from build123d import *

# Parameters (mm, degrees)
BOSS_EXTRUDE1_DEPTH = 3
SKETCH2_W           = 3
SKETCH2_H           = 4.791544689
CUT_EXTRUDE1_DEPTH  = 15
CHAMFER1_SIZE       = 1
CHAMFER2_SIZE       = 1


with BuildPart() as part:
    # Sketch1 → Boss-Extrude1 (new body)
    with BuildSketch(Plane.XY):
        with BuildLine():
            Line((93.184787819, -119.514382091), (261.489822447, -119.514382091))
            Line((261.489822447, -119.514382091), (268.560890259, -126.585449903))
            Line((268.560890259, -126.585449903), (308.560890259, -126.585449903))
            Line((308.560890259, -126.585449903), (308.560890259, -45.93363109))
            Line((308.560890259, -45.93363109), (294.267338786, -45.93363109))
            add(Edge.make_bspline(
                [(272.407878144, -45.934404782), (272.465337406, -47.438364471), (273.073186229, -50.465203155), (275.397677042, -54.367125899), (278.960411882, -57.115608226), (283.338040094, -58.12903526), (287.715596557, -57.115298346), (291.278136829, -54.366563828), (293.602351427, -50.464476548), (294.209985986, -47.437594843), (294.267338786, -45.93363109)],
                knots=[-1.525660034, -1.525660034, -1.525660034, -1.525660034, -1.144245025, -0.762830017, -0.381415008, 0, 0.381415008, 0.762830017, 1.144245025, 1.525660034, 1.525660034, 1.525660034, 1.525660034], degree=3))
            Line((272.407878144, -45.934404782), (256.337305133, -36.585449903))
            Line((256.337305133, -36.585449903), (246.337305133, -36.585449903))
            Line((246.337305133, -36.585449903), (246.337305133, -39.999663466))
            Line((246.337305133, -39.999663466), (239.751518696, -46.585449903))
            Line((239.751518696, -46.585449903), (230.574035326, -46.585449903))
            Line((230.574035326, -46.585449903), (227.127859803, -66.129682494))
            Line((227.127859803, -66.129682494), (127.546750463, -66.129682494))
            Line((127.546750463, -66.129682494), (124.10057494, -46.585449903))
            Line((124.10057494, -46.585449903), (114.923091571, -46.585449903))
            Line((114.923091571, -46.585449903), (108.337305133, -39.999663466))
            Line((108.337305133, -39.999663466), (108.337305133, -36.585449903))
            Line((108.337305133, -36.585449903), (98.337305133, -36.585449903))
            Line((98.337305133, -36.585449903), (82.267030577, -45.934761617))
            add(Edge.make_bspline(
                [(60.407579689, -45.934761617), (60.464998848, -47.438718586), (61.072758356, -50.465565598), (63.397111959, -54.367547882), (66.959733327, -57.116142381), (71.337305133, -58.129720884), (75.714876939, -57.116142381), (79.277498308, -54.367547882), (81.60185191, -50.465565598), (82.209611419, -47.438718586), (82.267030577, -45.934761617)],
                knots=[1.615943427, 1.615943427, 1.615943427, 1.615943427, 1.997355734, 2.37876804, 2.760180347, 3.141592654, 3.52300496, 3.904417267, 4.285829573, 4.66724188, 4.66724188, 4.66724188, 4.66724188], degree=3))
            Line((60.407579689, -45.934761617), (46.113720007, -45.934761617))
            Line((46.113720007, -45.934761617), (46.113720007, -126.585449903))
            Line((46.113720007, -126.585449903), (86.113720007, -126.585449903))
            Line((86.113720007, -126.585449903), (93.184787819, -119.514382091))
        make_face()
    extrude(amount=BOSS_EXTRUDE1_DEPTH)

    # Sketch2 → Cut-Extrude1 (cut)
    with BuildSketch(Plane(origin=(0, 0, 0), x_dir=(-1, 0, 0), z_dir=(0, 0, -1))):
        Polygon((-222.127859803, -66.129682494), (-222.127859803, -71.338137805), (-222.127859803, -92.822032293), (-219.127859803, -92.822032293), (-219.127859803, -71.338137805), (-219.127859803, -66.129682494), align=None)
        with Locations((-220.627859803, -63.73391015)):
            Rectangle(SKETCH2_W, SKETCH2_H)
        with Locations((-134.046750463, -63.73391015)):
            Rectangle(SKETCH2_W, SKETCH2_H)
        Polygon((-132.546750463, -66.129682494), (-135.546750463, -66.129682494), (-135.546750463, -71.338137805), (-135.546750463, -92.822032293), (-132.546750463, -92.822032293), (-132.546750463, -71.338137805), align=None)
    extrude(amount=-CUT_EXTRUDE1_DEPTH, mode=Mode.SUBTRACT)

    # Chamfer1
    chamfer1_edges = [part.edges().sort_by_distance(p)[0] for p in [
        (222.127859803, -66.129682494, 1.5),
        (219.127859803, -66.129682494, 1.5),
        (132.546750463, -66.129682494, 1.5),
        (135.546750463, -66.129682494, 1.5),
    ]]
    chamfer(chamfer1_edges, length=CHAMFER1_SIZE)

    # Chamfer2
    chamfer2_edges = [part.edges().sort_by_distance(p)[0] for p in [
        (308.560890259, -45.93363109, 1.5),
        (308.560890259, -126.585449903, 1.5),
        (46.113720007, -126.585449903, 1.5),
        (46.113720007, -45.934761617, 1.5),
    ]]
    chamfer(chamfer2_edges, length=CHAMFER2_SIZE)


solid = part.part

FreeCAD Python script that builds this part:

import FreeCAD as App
import Part
import Sketcher
Q = App.Units.Quantity


def edges_at(feature, points):
    """Names of the edges that pass closest to the given points."""
    edges = feature.Shape.Edges
    near = lambda p: min(range(len(edges)), key=lambda i: edges[i].distToShape(Part.Vertex(*p))[0])
    return sorted({f"Edge{near(p) + 1}" for p in points})


def add_polygon(sketch, points):
    """Adds a closed chain of lines whose ends are joined by coincident constraints."""
    first, n = sketch.GeometryCount, len(points)
    for a, b in zip(points, points[1:] + points[:1]):
        sketch.addGeometry(Part.LineSegment(App.Vector(*a, 0), App.Vector(*b, 0)), False)
    for i in range(n):
        sketch.addConstraint(Sketcher.Constraint("Coincident", first + i, 2, first + (i + 1) % n, 1))

doc = App.newDocument("Part")
params = doc.addObject("Spreadsheet::Sheet", "Params")
for row, (alias, value) in enumerate([
    ("sketch1_width", "40 mm"),
    ("sketch1_width2", "10 mm"),
    ("sketch1_length", "10 mm"),
    ("pad1_length", "3 mm"),
    ("sketch2_width", "3 mm"),
    ("pocket1_length", "15 mm"),
    ("chamfer_size", "1 mm"),
    ("chamfer2_size", "1 mm"),
], start=1):
    params.set(f"A{row}", alias)
    params.set(f"B{row}", "=" + value)
    params.setAlias(f"B{row}", alias)

body = doc.addObject("PartDesign::Body", "Body")

# Sketch on XY plane
sketch1 = doc.addObject("Sketcher::SketchObject", "Sketch")
body.addObject(sketch1)
sketch1.AttachmentSupport = (doc.XY_Plane, [""])
sketch1.MapMode = "FlatFace"
sketch1.addGeometry([
    Part.LineSegment(App.Vector(93.184788, -119.514382, 0), App.Vector(261.489822, -119.514382, 0)),  # 0
    Part.LineSegment(App.Vector(261.489822, -119.514382, 0), App.Vector(268.56089, -126.58545, 0)),  # 1
    Part.LineSegment(App.Vector(268.56089, -126.58545, 0), App.Vector(308.56089, -126.58545, 0)),  # 2
    Part.LineSegment(App.Vector(308.56089, -126.58545, 0), App.Vector(308.56089, -45.933631, 0)),  # 3
    Part.LineSegment(App.Vector(308.56089, -45.933631, 0), App.Vector(294.267339, -45.933631, 0)),  # 4
    Part.BSplineCurve([App.Vector(272.407878, -45.934405, 0), App.Vector(272.465337, -47.438364, 0), App.Vector(273.073186, -50.465203, 0), App.Vector(275.397677, -54.367126, 0), App.Vector(278.960412, -57.115608, 0), App.Vector(283.33804, -58.129035, 0), App.Vector(287.715597, -57.115298, 0), App.Vector(291.278137, -54.366564, 0), App.Vector(293.602351, -50.464477, 0), App.Vector(294.209986, -47.437595, 0), App.Vector(294.267339, -45.933631, 0)], [4, 1, 1, 1, 1, 1, 1, 1, 4], [-1.525660034, -1.144245025, -0.762830017, -0.381415008, 0, 0.381415008, 0.762830017, 1.144245025, 1.525660034], False, 3, [1, 1, 1, 1, 1, 1, 1, 1, 1, 1, 1], False),  # 5
    Part.LineSegment(App.Vector(272.407878, -45.934405, 0), App.Vector(256.337305, -36.58545, 0)),  # 6
    Part.LineSegment(App.Vector(256.337305, -36.58545, 0), App.Vector(246.337305, -36.58545, 0)),  # 7
    Part.LineSegment(App.Vector(246.337305, -36.58545, 0), App.Vector(246.337305, -39.999663, 0)),  # 8
    Part.LineSegment(App.Vector(246.337305, -39.999663, 0), App.Vector(239.751519, -46.58545, 0)),  # 9
    Part.LineSegment(App.Vector(239.751519, -46.58545, 0), App.Vector(230.574035, -46.58545, 0)),  # 10
    Part.LineSegment(App.Vector(230.574035, -46.58545, 0), App.Vector(227.12786, -66.129682, 0)),  # 11
    Part.LineSegment(App.Vector(227.12786, -66.129682, 0), App.Vector(127.54675, -66.129682, 0)),  # 12
    Part.LineSegment(App.Vector(127.54675, -66.129682, 0), App.Vector(124.100575, -46.58545, 0)),  # 13
    Part.LineSegment(App.Vector(124.100575, -46.58545, 0), App.Vector(114.923092, -46.58545, 0)),  # 14
    Part.LineSegment(App.Vector(114.923092, -46.58545, 0), App.Vector(108.337305, -39.999663, 0)),  # 15
    Part.LineSegment(App.Vector(108.337305, -39.999663, 0), App.Vector(108.337305, -36.58545, 0)),  # 16
    Part.LineSegment(App.Vector(108.337305, -36.58545, 0), App.Vector(98.337305, -36.58545, 0)),  # 17
    Part.LineSegment(App.Vector(98.337305, -36.58545, 0), App.Vector(82.267031, -45.934762, 0)),  # 18
    Part.BSplineCurve([App.Vector(60.40758, -45.934762, 0), App.Vector(60.464999, -47.438719, 0), App.Vector(61.072758, -50.465566, 0), App.Vector(63.397112, -54.367548, 0), App.Vector(66.959733, -57.116142, 0), App.Vector(71.337305, -58.129721, 0), App.Vector(75.714877, -57.116142, 0), App.Vector(79.277498, -54.367548, 0), App.Vector(81.601852, -50.465566, 0), App.Vector(82.209611, -47.438719, 0), App.Vector(82.267031, -45.934762, 0)], [4, 1, 1, 1, 1, 1, 1, 1, 4], [1.615943427, 1.997355734, 2.37876804, 2.760180347, 3.141592654, 3.52300496, 3.904417267, 4.285829573, 4.66724188], False, 3, [1, 1, 1, 1, 1, 1, 1, 1, 1, 1, 1], False),  # 19
    Part.LineSegment(App.Vector(60.40758, -45.934762, 0), App.Vector(46.11372, -45.934762, 0)),  # 20
    Part.LineSegment(App.Vector(46.11372, -45.934762, 0), App.Vector(46.11372, -126.58545, 0)),  # 21
    Part.LineSegment(App.Vector(46.11372, -126.58545, 0), App.Vector(86.11372, -126.58545, 0)),  # 22
    Part.LineSegment(App.Vector(86.11372, -126.58545, 0), App.Vector(93.184788, -119.514382, 0)),  # 23
], False)
sketch1.addConstraint([
    Sketcher.Constraint("Block", 5),
    Sketcher.Constraint("Block", 19),
    Sketcher.Constraint("Coincident", 0, 2, 1, 1),
    Sketcher.Constraint("Coincident", 1, 2, 2, 1),
    Sketcher.Constraint("Coincident", 2, 2, 3, 1),
    Sketcher.Constraint("Coincident", 3, 2, 4, 1),
    Sketcher.Constraint("Coincident", 4, 2, 5, 2),
    Sketcher.Constraint("Coincident", 5, 1, 6, 1),
    Sketcher.Constraint("Coincident", 6, 2, 7, 1),
    Sketcher.Constraint("Coincident", 7, 2, 8, 1),
    Sketcher.Constraint("Coincident", 8, 2, 9, 1),
    Sketcher.Constraint("Coincident", 9, 2, 10, 1),
    Sketcher.Constraint("Coincident", 10, 2, 11, 1),
    Sketcher.Constraint("Coincident", 11, 2, 12, 1),
    Sketcher.Constraint("Coincident", 12, 2, 13, 1),
    Sketcher.Constraint("Coincident", 13, 2, 14, 1),
    Sketcher.Constraint("Coincident", 14, 2, 15, 1),
    Sketcher.Constraint("Coincident", 15, 2, 16, 1),
    Sketcher.Constraint("Coincident", 16, 2, 17, 1),
    Sketcher.Constraint("Coincident", 17, 2, 18, 1),
    Sketcher.Constraint("Coincident", 18, 2, 19, 2),
    Sketcher.Constraint("Coincident", 19, 1, 20, 1),
    Sketcher.Constraint("Coincident", 20, 2, 21, 1),
    Sketcher.Constraint("Coincident", 21, 2, 22, 1),
    Sketcher.Constraint("Coincident", 22, 2, 23, 1),
    Sketcher.Constraint("Coincident", 23, 2, 0, 1),
    Sketcher.Constraint("Horizontal", 0),
    Sketcher.Constraint("Horizontal", 2),
    Sketcher.Constraint("Vertical", 3),
    Sketcher.Constraint("Horizontal", 4),
    Sketcher.Constraint("Horizontal", 7),
    Sketcher.Constraint("Vertical", 8),
    Sketcher.Constraint("Horizontal", 10),
    Sketcher.Constraint("Horizontal", 12),
    Sketcher.Constraint("Horizontal", 14),
    Sketcher.Constraint("Vertical", 16),
    Sketcher.Constraint("Horizontal", 17),
    Sketcher.Constraint("Horizontal", 20),
    Sketcher.Constraint("Vertical", 21),
    Sketcher.Constraint("Horizontal", 22),
    Sketcher.Constraint("Perpendicular", 1, 9),
    Sketcher.Constraint("Perpendicular", 9, 15),
    Sketcher.Constraint("Perpendicular", 15, 23),
    Sketcher.Constraint("Horizontal", 10, 2, 13, 2),
    Sketcher.Constraint("Horizontal", 8, 2, 15, 2),
    Sketcher.Constraint("Horizontal", 7, 2, 16, 2),
    Sketcher.Constraint("Horizontal", 2, 2, 21, 2),
    Sketcher.Constraint("Equal", 10, 14),
    Sketcher.Constraint("Equal", 7, 17),
    Sketcher.Constraint("Equal", 2, 22),
    Sketcher.Constraint("Equal", 11, 13),
    Sketcher.Constraint("Equal", 9, 15),
    Sketcher.Constraint("DistanceX", 2, 1, 2, 2, Q("40 mm")),
    Sketcher.Constraint("DistanceX", 7, 2, 7, 1, Q("10 mm")),
    Sketcher.Constraint("Angle", 11, Q("-100 deg")),
    Sketcher.Constraint("Distance", 1, Q("10 mm")),
    Sketcher.Constraint("DistanceY", 1, 2, 6, 2, Q("90 mm")),
    Sketcher.Constraint("DistanceY", 9, 2, 7, 2, Q("10 mm")),
    Sketcher.Constraint("DistanceX", 4, 2, 4, 1, Q("14.293551 mm")),
    Sketcher.Constraint("DistanceX", 12, 2, 12, 1, Q("99.581109 mm")),
    Sketcher.Constraint("DistanceX", 20, 2, 20, 1, Q("14.29386 mm")),
    Sketcher.Constraint("DistanceY", 3, 1, 3, 2, Q("80.651819 mm")),
    Sketcher.Constraint("DistanceY", 18, 2, 15, 2, Q("5.935098 mm")),
    Sketcher.Constraint("DistanceY", 23, 2, 12, 2, Q("53.3847 mm")),
    Sketcher.Constraint("DistanceX", 10, 2, 10, 1, Q("9.177483 mm")),
    Sketcher.Constraint("DistanceX", -1, 1, 9, 2, Q("239.751519 mm")),
])
sketch1.setExpression("Constraints[52]", "Params.sketch1_width")
sketch1.setExpression("Constraints[53]", "Params.sketch1_width2")
sketch1.setExpression("Constraints[55]", "Params.sketch1_length")
pad1 = doc.addObject("PartDesign::Pad", "Pad")
body.addObject(pad1)
pad1.Profile = sketch1
pad1.setExpression("Length", "Params.pad1_length")

# Sketch on XY plane
sketch2 = doc.addObject("Sketcher::SketchObject", "Sketch001")
body.addObject(sketch2)
sketch2.AttachmentSupport = (doc.XY_Plane, [""])
sketch2.MapMode = "FlatFace"
add_polygon(sketch2, [(222.1, -92.8), (219.1, -92.8), (219.1, -61.3), (222.1, -61.3)])  # lines 0-3
add_polygon(sketch2, [(135.5, -61.3), (135.5, -92.8), (132.5, -92.8), (132.5, -61.3)])  # lines 4-7
sketch2.addConstraint([
    Sketcher.Constraint("Horizontal", 0),
    Sketcher.Constraint("Vertical", 1),
    Sketcher.Constraint("Horizontal", 2),
    Sketcher.Constraint("Vertical", 3),
    Sketcher.Constraint("Vertical", 4),
    Sketcher.Constraint("Horizontal", 5),
    Sketcher.Constraint("Vertical", 6),
    Sketcher.Constraint("Horizontal", 7),
    Sketcher.Constraint("Horizontal", 3, 2, 4, 2),
    Sketcher.Constraint("Horizontal", 2, 2, 6, 2),
    Sketcher.Constraint("Equal", 2, 5),
    Sketcher.Constraint("DistanceX", 0, 2, 0, 1, Q("3 mm")),
    Sketcher.Constraint("DistanceY", 1, 1, 1, 2, Q("31.483894 mm")),
    Sketcher.Constraint("DistanceX", -1, 1, 0, 2, Q("219.12786 mm")),
    Sketcher.Constraint("DistanceX", -1, 1, 4, 2, Q("135.54675 mm")),
    Sketcher.Constraint("DistanceY", 0, 2, -1, 1, Q("92.822032 mm")),
])
sketch2.setExpression("Constraints[19]", "Params.sketch2_width")
pocket1 = doc.addObject("PartDesign::Pocket", "Pocket")
body.addObject(pocket1)
pocket1.Profile = sketch2
pocket1.setExpression("Length", "Params.pocket1_length")
pocket1.Reversed = True
doc.recompute()

chamfer = doc.addObject("PartDesign::Chamfer", "Chamfer")
body.addObject(chamfer)
chamfer.Base = (pocket1, edges_at(pocket1, [
    (222.128, -66.13, 1.5),
    (219.128, -66.13, 1.5),
    (132.547, -66.13, 1.5),
    (135.547, -66.13, 1.5),
]))
chamfer.setExpression("Size", "Params.chamfer_size")
doc.recompute()

chamfer2 = doc.addObject("PartDesign::Chamfer", "Chamfer001")
body.addObject(chamfer2)
chamfer2.Base = (chamfer, edges_at(chamfer, [
    (308.561, -45.934, 1.5),
    (308.561, -126.585, 1.5),
    (46.114, -126.585, 1.5),
    (46.114, -45.935, 1.5),
]))
chamfer2.setExpression("Size", "Params.chamfer2_size")

doc.recompute()
